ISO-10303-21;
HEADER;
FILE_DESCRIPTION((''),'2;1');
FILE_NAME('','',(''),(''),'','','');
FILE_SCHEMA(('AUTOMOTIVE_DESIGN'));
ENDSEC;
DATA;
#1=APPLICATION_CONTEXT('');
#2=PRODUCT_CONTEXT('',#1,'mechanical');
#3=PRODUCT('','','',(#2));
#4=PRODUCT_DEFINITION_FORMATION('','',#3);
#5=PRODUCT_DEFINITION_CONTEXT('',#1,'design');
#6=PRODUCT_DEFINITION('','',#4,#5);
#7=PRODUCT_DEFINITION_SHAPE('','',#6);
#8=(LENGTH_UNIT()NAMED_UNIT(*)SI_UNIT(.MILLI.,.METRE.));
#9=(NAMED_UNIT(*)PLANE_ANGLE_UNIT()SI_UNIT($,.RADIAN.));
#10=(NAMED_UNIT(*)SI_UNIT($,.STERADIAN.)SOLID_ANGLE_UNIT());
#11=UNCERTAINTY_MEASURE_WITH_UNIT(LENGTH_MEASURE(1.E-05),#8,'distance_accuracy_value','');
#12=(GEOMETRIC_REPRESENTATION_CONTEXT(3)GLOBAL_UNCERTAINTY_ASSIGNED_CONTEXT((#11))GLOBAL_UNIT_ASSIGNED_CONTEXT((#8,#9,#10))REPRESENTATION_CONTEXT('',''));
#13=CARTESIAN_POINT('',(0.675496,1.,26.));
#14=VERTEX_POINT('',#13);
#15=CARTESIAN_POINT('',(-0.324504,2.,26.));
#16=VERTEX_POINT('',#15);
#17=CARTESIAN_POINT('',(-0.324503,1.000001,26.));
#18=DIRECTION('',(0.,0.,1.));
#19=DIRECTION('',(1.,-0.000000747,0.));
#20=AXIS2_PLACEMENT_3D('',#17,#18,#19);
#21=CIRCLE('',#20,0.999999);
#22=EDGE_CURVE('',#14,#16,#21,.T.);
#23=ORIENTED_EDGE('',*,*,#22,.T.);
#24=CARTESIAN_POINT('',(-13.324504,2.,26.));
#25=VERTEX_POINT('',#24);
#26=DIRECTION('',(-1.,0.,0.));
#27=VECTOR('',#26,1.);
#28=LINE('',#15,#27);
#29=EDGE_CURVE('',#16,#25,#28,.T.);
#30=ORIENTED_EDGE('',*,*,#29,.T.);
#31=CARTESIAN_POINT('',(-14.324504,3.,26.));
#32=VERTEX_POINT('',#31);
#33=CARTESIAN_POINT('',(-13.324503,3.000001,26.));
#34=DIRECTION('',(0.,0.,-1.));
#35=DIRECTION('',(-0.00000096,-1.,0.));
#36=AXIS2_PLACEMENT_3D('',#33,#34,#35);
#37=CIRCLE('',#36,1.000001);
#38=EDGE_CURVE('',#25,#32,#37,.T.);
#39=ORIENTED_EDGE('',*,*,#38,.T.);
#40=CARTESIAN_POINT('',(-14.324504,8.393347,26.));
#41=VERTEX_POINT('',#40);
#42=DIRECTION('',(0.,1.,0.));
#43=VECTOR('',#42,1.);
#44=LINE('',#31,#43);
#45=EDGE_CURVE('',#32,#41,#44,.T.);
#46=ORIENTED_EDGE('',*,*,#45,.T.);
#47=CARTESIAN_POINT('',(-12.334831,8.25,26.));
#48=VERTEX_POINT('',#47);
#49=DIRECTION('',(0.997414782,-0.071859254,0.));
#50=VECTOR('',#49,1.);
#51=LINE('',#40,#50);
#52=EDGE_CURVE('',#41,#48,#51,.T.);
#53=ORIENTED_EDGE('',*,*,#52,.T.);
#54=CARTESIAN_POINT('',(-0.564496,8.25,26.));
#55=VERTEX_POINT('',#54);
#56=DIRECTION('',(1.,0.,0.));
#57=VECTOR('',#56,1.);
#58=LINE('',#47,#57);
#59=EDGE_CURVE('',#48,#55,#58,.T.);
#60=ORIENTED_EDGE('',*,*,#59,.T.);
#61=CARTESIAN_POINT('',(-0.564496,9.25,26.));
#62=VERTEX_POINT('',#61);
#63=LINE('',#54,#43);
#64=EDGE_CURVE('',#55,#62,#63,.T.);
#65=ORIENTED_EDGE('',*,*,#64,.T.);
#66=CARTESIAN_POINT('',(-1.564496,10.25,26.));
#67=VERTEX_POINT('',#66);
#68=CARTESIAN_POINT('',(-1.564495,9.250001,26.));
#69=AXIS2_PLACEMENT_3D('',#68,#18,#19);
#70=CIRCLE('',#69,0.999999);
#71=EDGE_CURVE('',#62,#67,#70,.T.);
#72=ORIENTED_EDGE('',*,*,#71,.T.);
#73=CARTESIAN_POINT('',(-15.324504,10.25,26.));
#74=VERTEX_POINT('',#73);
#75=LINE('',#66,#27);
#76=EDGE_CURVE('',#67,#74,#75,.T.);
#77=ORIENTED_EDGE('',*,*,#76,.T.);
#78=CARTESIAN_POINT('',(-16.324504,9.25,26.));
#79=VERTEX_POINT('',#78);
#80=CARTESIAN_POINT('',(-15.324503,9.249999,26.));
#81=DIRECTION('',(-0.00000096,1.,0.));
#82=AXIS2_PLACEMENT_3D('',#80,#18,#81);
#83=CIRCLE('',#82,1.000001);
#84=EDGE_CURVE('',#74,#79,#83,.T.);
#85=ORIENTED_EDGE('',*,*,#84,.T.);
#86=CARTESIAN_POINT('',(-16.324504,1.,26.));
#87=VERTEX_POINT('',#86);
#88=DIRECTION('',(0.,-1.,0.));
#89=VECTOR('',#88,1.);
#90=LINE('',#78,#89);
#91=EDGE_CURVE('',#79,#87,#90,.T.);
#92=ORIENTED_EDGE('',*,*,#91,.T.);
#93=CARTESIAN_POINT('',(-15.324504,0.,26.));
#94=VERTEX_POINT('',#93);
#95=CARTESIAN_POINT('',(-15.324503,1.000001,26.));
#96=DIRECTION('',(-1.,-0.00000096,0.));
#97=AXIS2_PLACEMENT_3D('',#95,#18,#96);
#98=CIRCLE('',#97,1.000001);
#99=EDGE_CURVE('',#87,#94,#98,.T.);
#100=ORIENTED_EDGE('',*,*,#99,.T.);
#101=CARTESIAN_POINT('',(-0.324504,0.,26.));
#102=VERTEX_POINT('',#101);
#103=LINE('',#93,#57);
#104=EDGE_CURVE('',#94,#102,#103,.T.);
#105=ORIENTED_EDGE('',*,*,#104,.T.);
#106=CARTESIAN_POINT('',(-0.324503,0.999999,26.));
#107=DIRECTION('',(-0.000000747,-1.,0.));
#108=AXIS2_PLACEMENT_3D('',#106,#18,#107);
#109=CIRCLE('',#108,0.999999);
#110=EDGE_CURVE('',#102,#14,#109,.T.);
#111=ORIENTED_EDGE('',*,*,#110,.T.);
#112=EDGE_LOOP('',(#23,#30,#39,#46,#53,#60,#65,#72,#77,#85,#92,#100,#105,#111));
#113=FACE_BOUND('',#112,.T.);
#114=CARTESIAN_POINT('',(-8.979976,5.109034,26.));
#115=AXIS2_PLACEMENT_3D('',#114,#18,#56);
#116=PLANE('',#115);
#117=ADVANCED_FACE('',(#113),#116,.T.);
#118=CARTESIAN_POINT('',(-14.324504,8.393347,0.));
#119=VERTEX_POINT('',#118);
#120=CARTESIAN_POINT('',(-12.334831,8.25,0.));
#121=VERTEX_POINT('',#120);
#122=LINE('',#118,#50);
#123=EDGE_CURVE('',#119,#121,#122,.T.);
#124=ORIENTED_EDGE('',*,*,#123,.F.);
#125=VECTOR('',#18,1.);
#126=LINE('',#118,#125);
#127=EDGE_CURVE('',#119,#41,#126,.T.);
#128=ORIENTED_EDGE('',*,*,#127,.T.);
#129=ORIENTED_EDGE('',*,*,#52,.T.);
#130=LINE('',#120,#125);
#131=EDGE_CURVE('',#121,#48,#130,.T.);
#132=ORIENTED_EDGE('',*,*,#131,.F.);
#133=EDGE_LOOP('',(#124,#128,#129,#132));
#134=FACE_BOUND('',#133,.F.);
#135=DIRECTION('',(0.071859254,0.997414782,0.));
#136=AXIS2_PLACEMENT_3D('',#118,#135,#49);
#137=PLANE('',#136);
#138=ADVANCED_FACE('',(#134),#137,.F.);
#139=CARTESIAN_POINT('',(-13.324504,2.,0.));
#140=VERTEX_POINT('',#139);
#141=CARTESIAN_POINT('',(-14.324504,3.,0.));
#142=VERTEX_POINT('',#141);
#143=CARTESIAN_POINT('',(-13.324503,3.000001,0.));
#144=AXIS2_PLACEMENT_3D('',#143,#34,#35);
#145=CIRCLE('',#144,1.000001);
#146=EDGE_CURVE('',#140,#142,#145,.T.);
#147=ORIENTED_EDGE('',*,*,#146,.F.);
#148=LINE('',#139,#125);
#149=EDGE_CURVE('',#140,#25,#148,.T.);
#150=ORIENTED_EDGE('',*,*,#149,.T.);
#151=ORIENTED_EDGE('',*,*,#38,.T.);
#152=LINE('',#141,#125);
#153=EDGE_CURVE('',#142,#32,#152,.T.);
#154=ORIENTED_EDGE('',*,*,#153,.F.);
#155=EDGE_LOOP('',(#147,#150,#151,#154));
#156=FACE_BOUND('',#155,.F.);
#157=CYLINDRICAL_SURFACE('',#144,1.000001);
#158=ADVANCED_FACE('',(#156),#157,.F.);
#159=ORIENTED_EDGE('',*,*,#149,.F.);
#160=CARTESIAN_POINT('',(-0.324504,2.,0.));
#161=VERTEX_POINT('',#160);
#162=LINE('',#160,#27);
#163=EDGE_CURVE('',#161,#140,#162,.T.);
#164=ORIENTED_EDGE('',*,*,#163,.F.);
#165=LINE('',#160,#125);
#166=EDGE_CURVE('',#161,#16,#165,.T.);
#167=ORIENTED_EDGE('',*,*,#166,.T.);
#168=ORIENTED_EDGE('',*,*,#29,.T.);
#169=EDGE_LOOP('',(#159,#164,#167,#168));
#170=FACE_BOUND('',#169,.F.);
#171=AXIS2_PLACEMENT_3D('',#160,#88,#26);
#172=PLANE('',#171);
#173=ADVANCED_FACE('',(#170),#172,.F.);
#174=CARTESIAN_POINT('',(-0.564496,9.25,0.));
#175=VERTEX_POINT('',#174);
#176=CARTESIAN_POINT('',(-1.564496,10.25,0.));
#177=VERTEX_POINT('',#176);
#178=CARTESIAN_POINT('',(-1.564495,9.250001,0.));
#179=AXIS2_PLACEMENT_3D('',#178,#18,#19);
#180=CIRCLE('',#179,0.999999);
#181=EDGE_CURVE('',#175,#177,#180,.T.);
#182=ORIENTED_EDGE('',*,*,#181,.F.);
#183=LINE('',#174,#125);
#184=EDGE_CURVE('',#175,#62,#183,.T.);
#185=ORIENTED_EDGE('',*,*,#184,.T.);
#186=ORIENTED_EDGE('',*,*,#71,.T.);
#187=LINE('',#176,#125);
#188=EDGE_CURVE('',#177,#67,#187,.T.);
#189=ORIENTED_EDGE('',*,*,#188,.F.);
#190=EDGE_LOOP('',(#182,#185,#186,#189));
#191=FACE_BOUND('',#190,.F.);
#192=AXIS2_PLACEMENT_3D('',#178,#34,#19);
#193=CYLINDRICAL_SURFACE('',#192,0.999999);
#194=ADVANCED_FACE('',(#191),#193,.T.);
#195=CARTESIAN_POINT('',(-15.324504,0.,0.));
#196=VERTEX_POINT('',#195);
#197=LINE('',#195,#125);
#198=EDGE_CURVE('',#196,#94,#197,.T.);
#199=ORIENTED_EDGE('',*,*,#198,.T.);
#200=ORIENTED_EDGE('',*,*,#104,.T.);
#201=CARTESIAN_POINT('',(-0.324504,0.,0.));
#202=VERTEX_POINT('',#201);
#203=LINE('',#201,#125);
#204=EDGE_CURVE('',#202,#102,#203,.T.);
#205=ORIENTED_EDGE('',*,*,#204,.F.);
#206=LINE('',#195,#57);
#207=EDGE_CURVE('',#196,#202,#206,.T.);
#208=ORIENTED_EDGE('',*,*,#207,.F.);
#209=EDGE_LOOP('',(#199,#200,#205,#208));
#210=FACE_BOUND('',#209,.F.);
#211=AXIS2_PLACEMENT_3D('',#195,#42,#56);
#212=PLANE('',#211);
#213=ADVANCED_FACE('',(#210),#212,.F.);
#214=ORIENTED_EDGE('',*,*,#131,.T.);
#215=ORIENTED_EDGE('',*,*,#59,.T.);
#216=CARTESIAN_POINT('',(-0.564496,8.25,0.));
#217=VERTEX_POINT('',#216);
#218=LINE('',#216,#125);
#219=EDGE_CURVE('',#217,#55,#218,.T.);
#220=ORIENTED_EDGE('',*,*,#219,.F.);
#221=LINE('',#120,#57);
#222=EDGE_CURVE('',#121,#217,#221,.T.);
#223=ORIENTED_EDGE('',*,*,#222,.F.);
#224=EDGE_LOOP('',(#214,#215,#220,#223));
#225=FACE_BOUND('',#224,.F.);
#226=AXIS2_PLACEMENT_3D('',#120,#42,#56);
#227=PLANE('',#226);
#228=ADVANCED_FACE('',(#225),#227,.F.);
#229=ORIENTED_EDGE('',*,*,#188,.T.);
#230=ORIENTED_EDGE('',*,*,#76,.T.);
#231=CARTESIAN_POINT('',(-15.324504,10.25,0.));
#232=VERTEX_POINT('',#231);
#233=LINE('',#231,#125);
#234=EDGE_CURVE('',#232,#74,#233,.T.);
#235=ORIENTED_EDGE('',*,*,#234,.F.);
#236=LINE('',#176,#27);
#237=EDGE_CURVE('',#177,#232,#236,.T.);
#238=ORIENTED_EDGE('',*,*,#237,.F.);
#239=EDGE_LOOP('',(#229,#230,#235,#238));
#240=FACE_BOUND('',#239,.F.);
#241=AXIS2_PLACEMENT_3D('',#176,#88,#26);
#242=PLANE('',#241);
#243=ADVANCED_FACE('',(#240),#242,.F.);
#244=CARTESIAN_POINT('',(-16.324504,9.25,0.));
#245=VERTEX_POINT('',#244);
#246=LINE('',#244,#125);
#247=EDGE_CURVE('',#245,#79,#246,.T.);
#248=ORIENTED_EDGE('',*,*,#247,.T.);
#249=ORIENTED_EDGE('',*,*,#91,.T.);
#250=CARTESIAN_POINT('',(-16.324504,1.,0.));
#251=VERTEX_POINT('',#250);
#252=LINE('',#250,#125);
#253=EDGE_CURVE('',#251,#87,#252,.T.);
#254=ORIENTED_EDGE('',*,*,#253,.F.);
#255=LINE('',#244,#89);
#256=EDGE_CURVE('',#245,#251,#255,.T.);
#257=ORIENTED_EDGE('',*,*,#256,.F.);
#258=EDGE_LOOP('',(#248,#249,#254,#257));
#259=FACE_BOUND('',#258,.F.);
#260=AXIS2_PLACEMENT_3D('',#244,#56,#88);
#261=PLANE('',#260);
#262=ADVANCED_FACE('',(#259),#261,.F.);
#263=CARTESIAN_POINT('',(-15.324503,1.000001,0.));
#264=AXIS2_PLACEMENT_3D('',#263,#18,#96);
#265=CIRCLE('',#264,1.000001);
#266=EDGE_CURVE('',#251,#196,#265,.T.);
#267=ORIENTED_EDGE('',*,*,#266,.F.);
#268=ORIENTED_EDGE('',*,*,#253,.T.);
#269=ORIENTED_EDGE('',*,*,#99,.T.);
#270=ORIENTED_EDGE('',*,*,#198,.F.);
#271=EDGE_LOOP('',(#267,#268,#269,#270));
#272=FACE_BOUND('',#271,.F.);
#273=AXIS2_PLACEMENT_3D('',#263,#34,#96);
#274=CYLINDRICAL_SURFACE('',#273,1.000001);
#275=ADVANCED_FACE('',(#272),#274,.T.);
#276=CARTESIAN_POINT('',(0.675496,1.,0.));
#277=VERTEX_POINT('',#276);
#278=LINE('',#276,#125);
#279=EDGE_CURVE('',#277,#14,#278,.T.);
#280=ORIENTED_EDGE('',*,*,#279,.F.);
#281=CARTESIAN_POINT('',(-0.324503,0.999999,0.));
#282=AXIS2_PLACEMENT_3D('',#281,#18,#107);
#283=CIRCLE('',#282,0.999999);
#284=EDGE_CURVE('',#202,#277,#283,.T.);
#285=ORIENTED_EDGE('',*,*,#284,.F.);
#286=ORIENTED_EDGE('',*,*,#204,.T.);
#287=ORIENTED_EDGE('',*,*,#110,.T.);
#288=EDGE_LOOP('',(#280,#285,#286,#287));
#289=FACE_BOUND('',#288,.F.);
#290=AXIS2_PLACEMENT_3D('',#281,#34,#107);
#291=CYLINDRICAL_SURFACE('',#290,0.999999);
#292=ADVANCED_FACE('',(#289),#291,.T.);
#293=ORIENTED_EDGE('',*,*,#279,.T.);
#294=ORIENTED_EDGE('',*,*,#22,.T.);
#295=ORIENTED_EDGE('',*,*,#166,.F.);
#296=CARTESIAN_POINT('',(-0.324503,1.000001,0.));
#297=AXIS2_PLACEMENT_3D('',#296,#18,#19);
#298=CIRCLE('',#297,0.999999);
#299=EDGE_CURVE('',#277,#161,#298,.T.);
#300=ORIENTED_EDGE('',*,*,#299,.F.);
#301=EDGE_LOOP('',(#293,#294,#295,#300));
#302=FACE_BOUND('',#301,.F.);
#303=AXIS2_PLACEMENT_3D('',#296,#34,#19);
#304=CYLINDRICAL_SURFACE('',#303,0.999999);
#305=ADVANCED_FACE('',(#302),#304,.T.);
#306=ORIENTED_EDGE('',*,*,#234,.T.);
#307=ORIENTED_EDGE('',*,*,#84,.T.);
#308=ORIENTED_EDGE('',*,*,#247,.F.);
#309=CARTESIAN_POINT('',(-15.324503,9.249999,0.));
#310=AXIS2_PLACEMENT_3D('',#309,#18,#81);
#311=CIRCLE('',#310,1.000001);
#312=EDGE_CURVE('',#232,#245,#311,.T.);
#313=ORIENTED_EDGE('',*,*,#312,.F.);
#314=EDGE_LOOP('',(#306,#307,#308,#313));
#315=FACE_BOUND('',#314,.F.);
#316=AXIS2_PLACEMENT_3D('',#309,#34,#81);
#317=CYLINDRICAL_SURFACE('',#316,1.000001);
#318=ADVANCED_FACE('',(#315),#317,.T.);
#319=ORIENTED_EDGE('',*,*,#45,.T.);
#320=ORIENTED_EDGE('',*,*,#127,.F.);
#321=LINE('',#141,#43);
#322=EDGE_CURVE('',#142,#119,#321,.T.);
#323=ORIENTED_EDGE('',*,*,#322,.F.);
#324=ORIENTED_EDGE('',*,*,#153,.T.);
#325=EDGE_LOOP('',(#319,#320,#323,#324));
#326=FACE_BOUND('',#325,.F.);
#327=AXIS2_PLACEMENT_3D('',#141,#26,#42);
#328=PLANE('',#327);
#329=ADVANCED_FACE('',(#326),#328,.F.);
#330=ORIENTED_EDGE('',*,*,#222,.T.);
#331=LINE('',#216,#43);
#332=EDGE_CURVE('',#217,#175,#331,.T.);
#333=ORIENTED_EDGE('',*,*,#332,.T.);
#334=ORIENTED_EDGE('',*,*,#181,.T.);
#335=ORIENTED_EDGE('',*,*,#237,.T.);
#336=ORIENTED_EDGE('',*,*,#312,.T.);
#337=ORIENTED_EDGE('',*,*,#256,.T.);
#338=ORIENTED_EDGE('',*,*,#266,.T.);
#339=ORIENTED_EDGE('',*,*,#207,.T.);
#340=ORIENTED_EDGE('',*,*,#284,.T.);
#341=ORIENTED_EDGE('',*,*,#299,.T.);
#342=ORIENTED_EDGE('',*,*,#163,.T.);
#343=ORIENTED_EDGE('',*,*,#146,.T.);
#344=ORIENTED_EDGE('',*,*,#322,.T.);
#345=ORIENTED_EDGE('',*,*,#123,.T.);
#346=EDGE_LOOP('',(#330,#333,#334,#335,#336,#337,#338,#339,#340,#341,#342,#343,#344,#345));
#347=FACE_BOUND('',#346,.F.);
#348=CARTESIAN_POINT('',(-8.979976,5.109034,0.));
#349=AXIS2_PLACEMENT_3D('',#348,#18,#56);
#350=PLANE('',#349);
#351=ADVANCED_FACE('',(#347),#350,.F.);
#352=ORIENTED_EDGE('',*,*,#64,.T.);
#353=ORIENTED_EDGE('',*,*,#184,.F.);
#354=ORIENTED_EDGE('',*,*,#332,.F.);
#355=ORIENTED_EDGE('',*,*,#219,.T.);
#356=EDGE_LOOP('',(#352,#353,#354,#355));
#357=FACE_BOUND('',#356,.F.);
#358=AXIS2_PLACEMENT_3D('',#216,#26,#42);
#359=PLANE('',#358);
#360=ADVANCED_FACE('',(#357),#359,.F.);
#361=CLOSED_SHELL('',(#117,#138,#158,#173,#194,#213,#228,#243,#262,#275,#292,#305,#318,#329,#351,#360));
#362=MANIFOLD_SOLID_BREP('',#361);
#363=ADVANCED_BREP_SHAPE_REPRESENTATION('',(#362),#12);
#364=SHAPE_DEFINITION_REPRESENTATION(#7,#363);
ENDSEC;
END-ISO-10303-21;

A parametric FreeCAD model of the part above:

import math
import FreeCAD as App
import Part
import Sketcher

V = App.Vector

doc = App.newDocument("Part")
body = doc.addObject("PartDesign::Body", "Body")

# Sketch on XY plane
sketch1 = doc.addObject("Sketcher::SketchObject", "Sketch")
body.addObject(sketch1)
sketch1.AttachmentSupport = (doc.XY_Plane, [""])
sketch1.MapMode = "FlatFace"
sketch1.addGeometry([
    Part.ArcOfCircle(Part.Circle(V(-15.324503, 1.000001, 0), V(0, 0, 1), 1.000001), math.radians(-179.999945), math.radians(-90.000055)),  # 0
    Part.LineSegment(V(-15.324504, 0, 0), V(-0.324504, 0, 0)),  # 1
    Part.ArcOfCircle(Part.Circle(V(-0.324503, 0.999999, 0), V(0, 0, 1), 0.999999), math.radians(-90.000043), math.radians(0.000043)),  # 2
    Part.ArcOfCircle(Part.Circle(V(-0.324503, 1.000001, 0), V(0, 0, 1), 0.999999), math.radians(-0.000043), math.radians(90.000043)),  # 3
    Part.LineSegment(V(-0.324504, 2, 0), V(-13.324504, 2, 0)),  # 4
    Part.ArcOfCircle(Part.Circle(V(-13.324503, 3.000001, 0), V(0, 0, 1), 1.000001), math.radians(-179.999945), math.radians(-90.000055)),  # 5
    Part.LineSegment(V(-14.324504, 3, 0), V(-14.324504, 8.393347, 0)),  # 6
    Part.LineSegment(V(-14.324504, 8.393347, 0), V(-12.334831, 8.25, 0)),  # 7
    Part.LineSegment(V(-12.334831, 8.25, 0), V(-0.564496, 8.25, 0)),  # 8
    Part.LineSegment(V(-0.564496, 8.25, 0), V(-0.564496, 9.25, 0)),  # 9
    Part.ArcOfCircle(Part.Circle(V(-1.564495, 9.250001, 0), V(0, 0, 1), 0.999999), math.radians(-0.000043), math.radians(90.000043)),  # 10
    Part.LineSegment(V(-1.564496, 10.25, 0), V(-15.324504, 10.25, 0)),  # 11
    Part.ArcOfCircle(Part.Circle(V(-15.324503, 9.249999, 0), V(0, 0, 1), 1.000001), math.radians(90.000055), math.radians(179.999945)),  # 12
    Part.LineSegment(V(-16.324504, 9.25, 0), V(-16.324504, 1, 0)),  # 13
], False)
sketch1.addConstraint([
    Sketcher.Constraint("Coincident", 0, 2, 1, 1),
    Sketcher.Constraint("Coincident", 1, 2, 2, 1),
    Sketcher.Constraint("Coincident", 2, 2, 3, 1),
    Sketcher.Constraint("Coincident", 3, 2, 4, 1),
    Sketcher.Constraint("Coincident", 4, 2, 5, 2),
    Sketcher.Constraint("Coincident", 5, 1, 6, 1),
    Sketcher.Constraint("Coincident", 6, 2, 7, 1),
    Sketcher.Constraint("Coincident", 7, 2, 8, 1),
    Sketcher.Constraint("Coincident", 8, 2, 9, 1),
    Sketcher.Constraint("Coincident", 9, 2, 10, 1),
    Sketcher.Constraint("Coincident", 10, 2, 11, 1),
    Sketcher.Constraint("Coincident", 11, 2, 12, 1),
    Sketcher.Constraint("Coincident", 12, 2, 13, 1),
    Sketcher.Constraint("Coincident", 13, 2, 0, 1),
    Sketcher.Constraint("Horizontal", 1),
    Sketcher.Constraint("Horizontal", 4),
    Sketcher.Constraint("Vertical", 6),
    Sketcher.Constraint("Horizontal", 8),
    Sketcher.Constraint("Vertical", 9),
    Sketcher.Constraint("Horizontal", 11),
    Sketcher.Constraint("Vertical", 13),
    Sketcher.Constraint("Coincident", 3, 3, 2, 3),
    Sketcher.Constraint("PointOnObject", 0, 2, -1),
    Sketcher.Constraint("Radius", 0, 1.000001),
    Sketcher.Constraint("Radius", 2, 0.999999),
    Sketcher.Constraint("Radius", 5, 1.000001),
    Sketcher.Constraint("Radius", 10, 0.999999),
    Sketcher.Constraint("Radius", 12, 1.000001),
    Sketcher.Constraint("DistanceX", 1, 1, 1, 2, 15.0),
    Sketcher.Constraint("DistanceX", 4, 2, 4, 1, 13.0),
    Sketcher.Constraint("DistanceY", 9, 1, 9, 2, 1.0),
    Sketcher.Constraint("DistanceY", -1, 1, 2, 2, 1.0),
    Sketcher.Constraint("DistanceY", -1, 1, 5, 1, 3.0),
    Sketcher.Constraint("DistanceY", -1, 1, 13, 2, 1.0),
    Sketcher.Constraint("DistanceX", 0, 3, 2, 3, 15.0),
    Sketcher.Constraint("DistanceX", 0, 3, 5, 3, 2.0),
    Sketcher.Constraint("DistanceX", 0, 2, 5, 3, 2.000001),
    Sketcher.Constraint("DistanceX", 3, 2, 2, 2, 1.0),
    Sketcher.Constraint("DistanceY", 7, 2, 12, 3, 0.999999),
    Sketcher.Constraint("DistanceX", 10, 2, 9, 2, 1.0),
    Sketcher.Constraint("DistanceX", 11, 2, 6, 2, 1.0),
    Sketcher.Constraint("DistanceY", 12, 2, 11, 2, 1.0),
    Sketcher.Constraint("DistanceY", 13, 2, 13, 1, 8.25),
    Sketcher.Constraint("Distance", 7, 1.99483),
    Sketcher.Constraint("DistanceX", 8, 1, 8, 2, 11.770335),
    Sketcher.Constraint("DistanceX", 11, 2, 11, 1, 13.760008),
    Sketcher.Constraint("DistanceX", 7, 2, -1, 1, 12.334831),
])
pad1 = doc.addObject("PartDesign::Pad", "Pad")
body.addObject(pad1)
pad1.Profile = sketch1
pad1.Length = 26

doc.recompute()
